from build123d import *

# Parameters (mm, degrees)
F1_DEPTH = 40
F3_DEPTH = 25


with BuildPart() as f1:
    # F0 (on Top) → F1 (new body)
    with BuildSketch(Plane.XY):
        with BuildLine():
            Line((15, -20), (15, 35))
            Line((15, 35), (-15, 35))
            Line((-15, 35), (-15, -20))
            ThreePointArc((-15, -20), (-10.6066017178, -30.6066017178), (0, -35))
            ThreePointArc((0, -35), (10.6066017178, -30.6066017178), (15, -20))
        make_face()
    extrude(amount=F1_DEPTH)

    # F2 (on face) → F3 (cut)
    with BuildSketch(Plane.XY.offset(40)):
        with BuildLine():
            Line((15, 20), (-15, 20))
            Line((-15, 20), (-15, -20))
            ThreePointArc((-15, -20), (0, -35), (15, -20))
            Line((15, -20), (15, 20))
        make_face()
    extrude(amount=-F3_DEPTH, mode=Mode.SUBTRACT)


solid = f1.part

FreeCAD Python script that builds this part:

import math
import FreeCAD as App
import Part
import Sketcher

V = App.Vector
Q = App.Units.Quantity

doc = App.newDocument("Part")
body = doc.addObject("PartDesign::Body", "Body")

sketch1 = body.newObject("Sketcher::SketchObject", "Sketch")
sketch1.AttachmentSupport = (doc.getObject("XY_Plane"), [""])
sketch1.MapMode = "FlatFace"
sketch1.addGeometry(Part.LineSegment(V(15, -20, 0), V(15, 35, 0)), False)
sketch1.addGeometry(Part.LineSegment(V(15, 35, 0), V(-15, 35, 0)), False)
sketch1.addGeometry(Part.LineSegment(V(-15, 35, 0), V(-15, -20, 0)), False)
sketch1.addGeometry(Part.ArcOfCircle(Part.Circle(V(0, -20, 0), V(0, 0, 1), 15), math.radians(180), math.radians(360)), False)
sketch1.addConstraint(Sketcher.Constraint("Coincident", 0, 2, 1, 1))
sketch1.addConstraint(Sketcher.Constraint("Coincident", 1, 2, 2, 1))
sketch1.addConstraint(Sketcher.Constraint("Tangent", 2, 2, 3, 1))
sketch1.addConstraint(Sketcher.Constraint("Tangent", 3, 2, 0, 1))
sketch1.addConstraint(Sketcher.Constraint("Vertical", 0))
sketch1.addConstraint(Sketcher.Constraint("Horizontal", 1))
sketch1.addConstraint(Sketcher.Constraint("Vertical", 2))
sketch1.addConstraint(Sketcher.Constraint("PointOnObject", 3, 3, -2))
sketch1.addConstraint(Sketcher.Constraint("Radius", 3, Q("15 mm")))
sketch1.addConstraint(Sketcher.Constraint("DistanceY", 0, 1, 0, 2, Q("55 mm")))
sketch1.addConstraint(Sketcher.Constraint("DistanceY", 3, 3, -1, 1, Q("20 mm")))
pad1 = body.newObject("PartDesign::Pad", "Pad")
pad1.Profile = sketch1
pad1.Length = 40

sketch2 = body.newObject("Sketcher::SketchObject", "Sketch001")
sketch2.AttachmentSupport = (doc.getObject("XY_Plane"), [""])
sketch2.MapMode = "FlatFace"
sketch2.AttachmentOffset = App.Placement(V(0, 0, 40), App.Rotation())
sketch2.addGeometry(Part.LineSegment(V(15, 20, 0), V(-15, 20, 0)), False)
sketch2.addGeometry(Part.LineSegment(V(-15, 20, 0), V(-15, -20, 0)), False)
sketch2.addGeometry(Part.ArcOfCircle(Part.Circle(V(0, -20, 0), V(0, 0, 1), 15), math.radians(180), math.radians(360)), False)
sketch2.addGeometry(Part.LineSegment(V(15, -20, 0), V(15, 20, 0)), False)
sketch2.addConstraint(Sketcher.Constraint("Coincident", 0, 2, 1, 1))
sketch2.addConstraint(Sketcher.Constraint("Tangent", 1, 2, 2, 1))
sketch2.addConstraint(Sketcher.Constraint("Tangent", 2, 2, 3, 1))
sketch2.addConstraint(Sketcher.Constraint("Coincident", 3, 2, 0, 1))
sketch2.addConstraint(Sketcher.Constraint("Horizontal", 0))
sketch2.addConstraint(Sketcher.Constraint("Vertical", 1))
sketch2.addConstraint(Sketcher.Constraint("Vertical", 3))
sketch2.addConstraint(Sketcher.Constraint("Symmetric", 0, 2, 2, 2, -1, 1))
sketch2.addConstraint(Sketcher.Constraint("Radius", 2, Q("15 mm")))
sketch2.addConstraint(Sketcher.Constraint("DistanceY", 1, 2, 1, 1, Q("40 mm")))
pocket1 = body.newObject("PartDesign::Pocket", "Pocket")
pocket1.Profile = sketch2
pocket1.Length = 25

doc.recompute()
